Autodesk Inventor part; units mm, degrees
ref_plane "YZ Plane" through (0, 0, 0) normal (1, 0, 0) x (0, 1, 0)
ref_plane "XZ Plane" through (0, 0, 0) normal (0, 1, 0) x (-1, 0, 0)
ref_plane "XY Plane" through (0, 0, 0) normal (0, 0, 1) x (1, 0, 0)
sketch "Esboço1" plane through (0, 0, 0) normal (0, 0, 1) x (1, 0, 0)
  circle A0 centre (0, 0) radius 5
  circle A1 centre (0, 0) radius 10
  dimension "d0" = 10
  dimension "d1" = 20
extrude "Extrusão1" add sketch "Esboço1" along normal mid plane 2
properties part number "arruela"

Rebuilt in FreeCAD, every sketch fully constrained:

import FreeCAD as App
import Part
import Sketcher

doc = App.newDocument("Part")
body = doc.addObject("PartDesign::Body", "Body")

# Sketch on XY plane
sketch1 = body.newObject("Sketcher::SketchObject", "Sketch")
sketch1.AttachmentSupport = (doc.getObject("XY_Plane"), [""])
sketch1.MapMode = "FlatFace"
sketch1.addGeometry([
    Part.Circle(App.Vector(0, 0, 0), App.Vector(0, 0, 1), 10),
    Part.Circle(App.Vector(0, 0, 0), App.Vector(0, 0, 1), 5),
], False)
sketch1.addConstraint([
    Sketcher.Constraint("Coincident", 0, 3, -1, 1),
    Sketcher.Constraint("Coincident", 1, 3, -1, 1),
    Sketcher.Constraint("Diameter", 0, 20.0),
    Sketcher.Constraint("Diameter", 1, 10.0),
])
pad1 = body.newObject("PartDesign::Pad", "Pad")
pad1.Profile = sketch1
pad1.Length = 2
pad1.Midplane = True

doc.recompute()
